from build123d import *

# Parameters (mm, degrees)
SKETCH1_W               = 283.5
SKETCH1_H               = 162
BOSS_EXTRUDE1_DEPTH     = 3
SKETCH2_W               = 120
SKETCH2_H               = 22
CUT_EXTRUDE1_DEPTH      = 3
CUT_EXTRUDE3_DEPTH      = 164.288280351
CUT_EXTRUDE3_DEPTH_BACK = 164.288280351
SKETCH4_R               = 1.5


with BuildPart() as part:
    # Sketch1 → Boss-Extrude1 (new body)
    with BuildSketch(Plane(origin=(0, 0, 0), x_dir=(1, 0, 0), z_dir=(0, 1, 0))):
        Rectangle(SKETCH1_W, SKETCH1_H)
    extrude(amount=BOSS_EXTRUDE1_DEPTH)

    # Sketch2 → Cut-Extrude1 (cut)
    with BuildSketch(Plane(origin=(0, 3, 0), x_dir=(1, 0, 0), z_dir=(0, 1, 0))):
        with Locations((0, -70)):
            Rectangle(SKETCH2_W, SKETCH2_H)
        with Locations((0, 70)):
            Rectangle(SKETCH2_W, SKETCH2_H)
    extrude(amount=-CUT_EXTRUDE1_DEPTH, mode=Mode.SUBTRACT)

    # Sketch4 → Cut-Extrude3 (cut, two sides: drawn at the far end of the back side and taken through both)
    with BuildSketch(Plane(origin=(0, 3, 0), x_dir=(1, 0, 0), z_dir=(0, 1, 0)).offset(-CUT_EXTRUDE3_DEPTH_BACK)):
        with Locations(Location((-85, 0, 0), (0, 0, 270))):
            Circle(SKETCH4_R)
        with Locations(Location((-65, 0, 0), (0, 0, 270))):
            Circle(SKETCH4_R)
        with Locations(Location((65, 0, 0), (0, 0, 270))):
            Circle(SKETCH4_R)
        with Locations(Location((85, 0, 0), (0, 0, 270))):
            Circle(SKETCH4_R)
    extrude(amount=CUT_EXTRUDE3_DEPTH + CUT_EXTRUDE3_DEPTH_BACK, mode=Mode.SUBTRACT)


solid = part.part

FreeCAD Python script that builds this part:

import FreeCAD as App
import Part
import Sketcher

doc = App.newDocument("Part")
body = doc.addObject("PartDesign::Body", "Body")

# Sketch on XZ plane
sketch1 = body.newObject("Sketcher::SketchObject", "Sketch")
sketch1.AttachmentSupport = (doc.getObject("XZ_Plane"), [""])
sketch1.MapMode = "FlatFace"
sketch1.addGeometry(Part.LineSegment(App.Vector(-142, -81, 0), App.Vector(-142, 81, 0)), False)
sketch1.addGeometry(Part.LineSegment(App.Vector(-142, 81, 0), App.Vector(142, 81, 0)), False)
sketch1.addGeometry(Part.LineSegment(App.Vector(142, 81, 0), App.Vector(142, -81, 0)), False)
sketch1.addGeometry(Part.LineSegment(App.Vector(142, -81, 0), App.Vector(-142, -81, 0)), False)
sketch1.addConstraint(Sketcher.Constraint("Coincident", 0, 2, 1, 1))
sketch1.addConstraint(Sketcher.Constraint("Coincident", 1, 2, 2, 1))
sketch1.addConstraint(Sketcher.Constraint("Coincident", 2, 2, 3, 1))
sketch1.addConstraint(Sketcher.Constraint("Coincident", 3, 2, 0, 1))
sketch1.addConstraint(Sketcher.Constraint("Vertical", 0))
sketch1.addConstraint(Sketcher.Constraint("Horizontal", 1))
sketch1.addConstraint(Sketcher.Constraint("Vertical", 2))
sketch1.addConstraint(Sketcher.Constraint("Horizontal", 3))
sketch1.addConstraint(Sketcher.Constraint("Symmetric", 0, 2, 2, 2, -1, 1))
sketch1.addConstraint(Sketcher.Constraint("DistanceY", 0, 1, 0, 2, 162.0))
sketch1.addConstraint(Sketcher.Constraint("DistanceX", 1, 1, 1, 2, 283.5))
pad1 = body.newObject("PartDesign::Pad", "Pad")
pad1.Profile = sketch1
pad1.Length = 3
pad1.Reversed = True

# Sketch on XZ plane
sketch2 = body.newObject("Sketcher::SketchObject", "Sketch001")
sketch2.AttachmentSupport = (doc.getObject("XZ_Plane"), [""])
sketch2.MapMode = "FlatFace"
sketch2.AttachmentOffset = App.Placement(App.Vector(0, 0, -3), App.Rotation())
sketch2.addGeometry(Part.LineSegment(App.Vector(-60, 59, 0), App.Vector(-60, 81, 0)), False)
sketch2.addGeometry(Part.LineSegment(App.Vector(-60, 81, 0), App.Vector(60, 81, 0)), False)
sketch2.addGeometry(Part.LineSegment(App.Vector(60, 81, 0), App.Vector(60, 59, 0)), False)
sketch2.addGeometry(Part.LineSegment(App.Vector(60, 59, 0), App.Vector(-60, 59, 0)), False)
sketch2.addGeometry(Part.LineSegment(App.Vector(-60, -81, 0), App.Vector(-60, -59, 0)), False)
sketch2.addGeometry(Part.LineSegment(App.Vector(-60, -59, 0), App.Vector(60, -59, 0)), False)
sketch2.addGeometry(Part.LineSegment(App.Vector(60, -59, 0), App.Vector(60, -81, 0)), False)
sketch2.addGeometry(Part.LineSegment(App.Vector(60, -81, 0), App.Vector(-60, -81, 0)), False)
sketch2.addConstraint(Sketcher.Constraint("Coincident", 0, 2, 1, 1))
sketch2.addConstraint(Sketcher.Constraint("Coincident", 1, 2, 2, 1))
sketch2.addConstraint(Sketcher.Constraint("Coincident", 2, 2, 3, 1))
sketch2.addConstraint(Sketcher.Constraint("Coincident", 3, 2, 0, 1))
sketch2.addConstraint(Sketcher.Constraint("Coincident", 4, 2, 5, 1))
sketch2.addConstraint(Sketcher.Constraint("Coincident", 5, 2, 6, 1))
sketch2.addConstraint(Sketcher.Constraint("Coincident", 6, 2, 7, 1))
sketch2.addConstraint(Sketcher.Constraint("Coincident", 7, 2, 4, 1))
sketch2.addConstraint(Sketcher.Constraint("Vertical", 0))
sketch2.addConstraint(Sketcher.Constraint("Horizontal", 1))
sketch2.addConstraint(Sketcher.Constraint("Vertical", 2))
sketch2.addConstraint(Sketcher.Constraint("Horizontal", 3))
sketch2.addConstraint(Sketcher.Constraint("Vertical", 4))
sketch2.addConstraint(Sketcher.Constraint("Horizontal", 5))
sketch2.addConstraint(Sketcher.Constraint("Vertical", 6))
sketch2.addConstraint(Sketcher.Constraint("Horizontal", 7))
sketch2.addConstraint(Sketcher.Constraint("Symmetric", 2, 2, 4, 2, -1, 1))
sketch2.addConstraint(Sketcher.Constraint("Symmetric", 0, 2, 6, 2, -1, 1))
sketch2.addConstraint(Sketcher.Constraint("Vertical", 3, 2, 4, 2))
sketch2.addConstraint(Sketcher.Constraint("DistanceX", 1, 1, 1, 2, 120.0))
sketch2.addConstraint(Sketcher.Constraint("DistanceY", 0, 1, 0, 2, 22.0))
sketch2.addConstraint(Sketcher.Constraint("DistanceY", -1, 1, 0, 2, 81.0))
pocket1 = body.newObject("PartDesign::Pocket", "Pocket")
pocket1.Profile = sketch2
pocket1.Length = 3
pocket1.Reversed = True

# Sketch on XZ plane
sketch3 = body.newObject("Sketcher::SketchObject", "Sketch002")
sketch3.AttachmentSupport = (doc.getObject("XZ_Plane"), [""])
sketch3.MapMode = "FlatFace"
sketch3.AttachmentOffset = App.Placement(App.Vector(0, 0, -3), App.Rotation())
sketch3.addGeometry(Part.Circle(App.Vector(-85, 0, 0), App.Vector(0, 0, 1), 1.5), False)
sketch3.addGeometry(Part.Circle(App.Vector(-65, 0, 0), App.Vector(0, 0, 1), 1.5), False)
sketch3.addGeometry(Part.Circle(App.Vector(65, 0, 0), App.Vector(0, 0, 1), 1.5), False)
sketch3.addGeometry(Part.Circle(App.Vector(85, 0, 0), App.Vector(0, 0, 1), 1.5), False)
sketch3.addConstraint(Sketcher.Constraint("Equal", 0, 1))
sketch3.addConstraint(Sketcher.Constraint("Equal", 1, 2))
sketch3.addConstraint(Sketcher.Constraint("Equal", 2, 3))
sketch3.addConstraint(Sketcher.Constraint("Symmetric", 1, 3, 2, 3, -1, 1))
sketch3.addConstraint(Sketcher.Constraint("Symmetric", 0, 3, 3, 3, -1, 1))
sketch3.addConstraint(Sketcher.Constraint("PointOnObject", 0, 3, -1))
sketch3.addConstraint(Sketcher.Constraint("PointOnObject", 1, 3, -1))
sketch3.addConstraint(Sketcher.Constraint("Diameter", 0, 3.0))
sketch3.addConstraint(Sketcher.Constraint("DistanceX", 0, 3, -1, 1, 85.0))
sketch3.addConstraint(Sketcher.Constraint("DistanceX", 1, 3, -1, 1, 65.0))
pocket2 = body.newObject("PartDesign::Pocket", "Pocket001")
pocket2.Profile = sketch3
pocket2.Type = "ThroughAll"
pocket2.Midplane = True

doc.recompute()
